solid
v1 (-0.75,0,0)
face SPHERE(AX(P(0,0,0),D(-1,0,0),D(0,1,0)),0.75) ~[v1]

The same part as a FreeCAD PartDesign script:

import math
import FreeCAD as App
import Part
import Sketcher

V = App.Vector
Q = App.Units.Quantity

doc = App.newDocument("Part")
body = doc.addObject("PartDesign::Body", "Body")

# Sketch on XY plane
sketch1 = body.newObject("Sketcher::SketchObject", "Sketch")
sketch1.AttachmentSupport = (doc.getObject("XY_Plane"), [""])
sketch1.MapMode = "FlatFace"
sketch1.addGeometry([
    Part.LineSegment(V(-0.8, 0, 0), V(0.8, 0, 0)),
    Part.ArcOfCircle(Part.Circle(V(0, 0, 0), V(0, 0, 1), 0.8), math.radians(0), math.radians(180)),
], False)
sketch1.addConstraint([
    Sketcher.Constraint("Coincident", 0, 1, 1, 2),
    Sketcher.Constraint("Coincident", 1, 1, 0, 2),
    Sketcher.Constraint("Horizontal", 0),
    Sketcher.Constraint("Coincident", 1, 3, -1, 1),
    Sketcher.Constraint("PointOnObject", 0, 1, -1),
    Sketcher.Constraint("Radius", 1, Q("0.75 mm")),
])
revolution = body.newObject("PartDesign::Revolution", "Revolution")
revolution.Profile = sketch1
revolution.ReferenceAxis = (sketch1, ["H_Axis"])
revolution.Angle = 360

doc.recompute()
